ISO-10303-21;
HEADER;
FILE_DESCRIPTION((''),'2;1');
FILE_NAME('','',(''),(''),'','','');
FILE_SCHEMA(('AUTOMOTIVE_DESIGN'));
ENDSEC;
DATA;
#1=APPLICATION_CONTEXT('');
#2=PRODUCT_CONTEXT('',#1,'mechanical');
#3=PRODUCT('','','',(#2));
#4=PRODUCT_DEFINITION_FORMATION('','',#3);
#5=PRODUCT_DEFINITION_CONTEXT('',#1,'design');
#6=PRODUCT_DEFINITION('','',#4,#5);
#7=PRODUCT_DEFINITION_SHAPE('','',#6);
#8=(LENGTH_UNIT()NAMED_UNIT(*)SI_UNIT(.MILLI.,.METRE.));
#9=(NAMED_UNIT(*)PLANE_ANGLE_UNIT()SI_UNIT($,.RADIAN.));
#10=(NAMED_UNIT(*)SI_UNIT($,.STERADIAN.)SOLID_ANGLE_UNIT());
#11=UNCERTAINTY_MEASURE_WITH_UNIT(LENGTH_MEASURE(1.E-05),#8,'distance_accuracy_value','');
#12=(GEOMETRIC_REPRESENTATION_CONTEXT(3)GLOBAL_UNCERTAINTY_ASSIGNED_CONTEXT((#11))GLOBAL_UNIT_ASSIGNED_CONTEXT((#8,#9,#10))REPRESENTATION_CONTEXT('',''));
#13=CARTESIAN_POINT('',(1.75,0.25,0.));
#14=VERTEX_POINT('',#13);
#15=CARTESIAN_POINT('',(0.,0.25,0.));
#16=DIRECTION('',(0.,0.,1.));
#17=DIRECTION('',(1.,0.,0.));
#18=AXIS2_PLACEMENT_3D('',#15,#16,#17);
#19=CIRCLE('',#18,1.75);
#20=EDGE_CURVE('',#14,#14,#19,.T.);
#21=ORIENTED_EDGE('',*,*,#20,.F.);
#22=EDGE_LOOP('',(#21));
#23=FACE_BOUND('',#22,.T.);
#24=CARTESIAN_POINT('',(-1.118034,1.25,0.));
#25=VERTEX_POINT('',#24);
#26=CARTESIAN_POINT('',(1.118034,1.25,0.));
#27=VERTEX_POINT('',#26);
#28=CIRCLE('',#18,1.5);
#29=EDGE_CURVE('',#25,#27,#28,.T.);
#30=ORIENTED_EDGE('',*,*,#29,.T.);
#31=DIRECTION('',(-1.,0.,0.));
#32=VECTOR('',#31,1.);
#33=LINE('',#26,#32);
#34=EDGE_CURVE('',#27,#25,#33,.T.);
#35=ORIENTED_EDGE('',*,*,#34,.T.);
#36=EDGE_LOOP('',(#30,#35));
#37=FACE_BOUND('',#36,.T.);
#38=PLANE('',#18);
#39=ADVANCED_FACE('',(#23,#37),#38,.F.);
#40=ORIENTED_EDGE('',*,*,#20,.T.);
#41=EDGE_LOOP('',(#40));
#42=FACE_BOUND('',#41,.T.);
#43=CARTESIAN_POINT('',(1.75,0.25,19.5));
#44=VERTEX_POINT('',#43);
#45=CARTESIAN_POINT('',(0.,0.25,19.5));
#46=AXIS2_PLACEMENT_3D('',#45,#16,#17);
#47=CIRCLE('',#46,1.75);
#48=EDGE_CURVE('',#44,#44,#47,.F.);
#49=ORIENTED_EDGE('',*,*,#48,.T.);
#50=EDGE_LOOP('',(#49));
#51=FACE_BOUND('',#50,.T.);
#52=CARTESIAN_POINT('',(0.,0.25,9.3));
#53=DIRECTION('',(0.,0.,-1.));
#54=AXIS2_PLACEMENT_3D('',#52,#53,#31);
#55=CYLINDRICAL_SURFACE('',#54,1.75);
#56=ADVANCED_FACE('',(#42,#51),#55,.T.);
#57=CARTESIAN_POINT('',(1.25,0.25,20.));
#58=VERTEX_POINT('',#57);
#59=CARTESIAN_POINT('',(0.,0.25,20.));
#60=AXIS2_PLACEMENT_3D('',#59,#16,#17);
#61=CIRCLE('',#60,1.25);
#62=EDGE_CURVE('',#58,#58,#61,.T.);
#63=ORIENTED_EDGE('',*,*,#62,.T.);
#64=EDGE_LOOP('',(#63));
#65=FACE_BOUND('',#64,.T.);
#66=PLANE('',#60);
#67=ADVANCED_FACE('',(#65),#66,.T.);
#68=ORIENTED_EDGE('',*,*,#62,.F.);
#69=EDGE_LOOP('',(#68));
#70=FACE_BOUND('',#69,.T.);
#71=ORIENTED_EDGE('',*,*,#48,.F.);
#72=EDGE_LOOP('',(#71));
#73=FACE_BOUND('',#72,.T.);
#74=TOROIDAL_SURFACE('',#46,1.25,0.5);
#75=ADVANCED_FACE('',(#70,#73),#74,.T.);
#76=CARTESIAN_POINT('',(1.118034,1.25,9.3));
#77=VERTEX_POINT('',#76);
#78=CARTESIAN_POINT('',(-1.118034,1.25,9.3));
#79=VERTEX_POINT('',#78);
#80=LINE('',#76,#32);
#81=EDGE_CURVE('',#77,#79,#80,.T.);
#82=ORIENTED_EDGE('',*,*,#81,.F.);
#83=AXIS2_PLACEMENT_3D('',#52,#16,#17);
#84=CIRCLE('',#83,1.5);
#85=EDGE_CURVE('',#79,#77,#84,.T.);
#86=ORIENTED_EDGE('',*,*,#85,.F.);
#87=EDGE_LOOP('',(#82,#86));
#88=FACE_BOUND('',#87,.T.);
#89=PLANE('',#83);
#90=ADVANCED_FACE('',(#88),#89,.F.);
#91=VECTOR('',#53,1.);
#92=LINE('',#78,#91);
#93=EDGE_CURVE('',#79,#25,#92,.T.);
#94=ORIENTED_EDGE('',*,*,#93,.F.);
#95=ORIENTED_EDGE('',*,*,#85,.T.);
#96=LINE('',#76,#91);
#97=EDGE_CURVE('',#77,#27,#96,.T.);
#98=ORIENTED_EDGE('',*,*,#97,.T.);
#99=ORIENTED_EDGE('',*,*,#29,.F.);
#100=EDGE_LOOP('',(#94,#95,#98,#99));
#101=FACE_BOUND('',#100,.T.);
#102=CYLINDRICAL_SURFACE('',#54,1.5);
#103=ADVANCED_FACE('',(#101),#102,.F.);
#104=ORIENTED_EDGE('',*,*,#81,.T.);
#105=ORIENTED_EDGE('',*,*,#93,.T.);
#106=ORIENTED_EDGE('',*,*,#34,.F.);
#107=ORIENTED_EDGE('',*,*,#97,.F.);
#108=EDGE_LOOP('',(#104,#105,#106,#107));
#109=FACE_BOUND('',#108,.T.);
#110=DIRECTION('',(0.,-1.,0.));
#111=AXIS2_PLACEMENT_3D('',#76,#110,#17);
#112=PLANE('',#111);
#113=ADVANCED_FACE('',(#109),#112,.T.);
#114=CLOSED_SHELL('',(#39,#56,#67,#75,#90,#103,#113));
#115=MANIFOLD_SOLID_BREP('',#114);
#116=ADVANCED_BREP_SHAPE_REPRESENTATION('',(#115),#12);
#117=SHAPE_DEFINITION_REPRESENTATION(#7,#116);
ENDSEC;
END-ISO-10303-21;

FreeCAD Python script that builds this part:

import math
import FreeCAD as App
import Part
import Sketcher

V = App.Vector
Q = App.Units.Quantity


def edges_at(feature, points):
    """Names of the edges that pass closest to the given points."""
    edges = feature.Shape.Edges
    near = lambda p: min(range(len(edges)), key=lambda i: edges[i].distToShape(Part.Vertex(*p))[0])
    return sorted({f"Edge{near(p) + 1}" for p in points})

doc = App.newDocument("Part")
body = doc.addObject("PartDesign::Body", "Body")

# Sketch on XY plane
sketch1 = body.newObject("Sketcher::SketchObject", "Sketch")
sketch1.AttachmentSupport = (doc.getObject("XY_Plane"), [""])
sketch1.MapMode = "FlatFace"
sketch1.addGeometry(Part.Circle(V(0, 0.2, 0), V(0, 0, 1), 1.8), False)
sketch1.addGeometry(Part.LineSegment(V(-1.1, 1.2, 0), V(1.1, 1.2, 0)), False)
sketch1.addGeometry(Part.ArcOfCircle(Part.Circle(V(0, 0.2, 0), V(0, 0, 1), 1.5), math.radians(138), math.radians(402)), False)
sketch1.addConstraint(Sketcher.Constraint("Coincident", 1, 1, 2, 1))
sketch1.addConstraint(Sketcher.Constraint("Coincident", 2, 2, 1, 2))
sketch1.addConstraint(Sketcher.Constraint("Horizontal", 1))
sketch1.addConstraint(Sketcher.Constraint("Coincident", 2, 3, 0, 3))
sketch1.addConstraint(Sketcher.Constraint("PointOnObject", 0, 3, -2))
sketch1.addConstraint(Sketcher.Constraint("Diameter", 0, Q("3.5 mm")))
sketch1.addConstraint(Sketcher.Constraint("Radius", 2, Q("1.5 mm")))
sketch1.addConstraint(Sketcher.Constraint("DistanceY", 0, 3, 1, 1, Q("1 mm")))
sketch1.addConstraint(Sketcher.Constraint("DistanceY", -1, 1, 0, 3, Q("0.25 mm")))
pad1 = body.newObject("PartDesign::Pad", "Pad")
pad1.Profile = sketch1
pad1.Length = 9.3

# Sketch on XY plane
sketch2 = body.newObject("Sketcher::SketchObject", "Sketch001")
sketch2.AttachmentSupport = (doc.getObject("XY_Plane"), [""])
sketch2.MapMode = "FlatFace"
sketch2.AttachmentOffset = App.Placement(V(0, 0, 9.3), App.Rotation())
sketch2.addGeometry(Part.Circle(V(0, 0.2, 0), V(0, 0, 1), 1.8), False)
sketch2.addConstraint(Sketcher.Constraint("PointOnObject", 0, 3, -2))
sketch2.addConstraint(Sketcher.Constraint("Diameter", 0, Q("3.5 mm")))
sketch2.addConstraint(Sketcher.Constraint("DistanceY", -1, 1, 0, 3, Q("0.25 mm")))
pad2 = body.newObject("PartDesign::Pad", "Pad001")
pad2.Profile = sketch2
pad2.Length = 10.7
doc.recompute()

fillet = body.newObject("PartDesign::Fillet", "Fillet")
fillet.Base = (pad2, edges_at(pad2, [(-1.75, 0.25, 20)]))
fillet.Radius = 0.5

doc.recompute()
